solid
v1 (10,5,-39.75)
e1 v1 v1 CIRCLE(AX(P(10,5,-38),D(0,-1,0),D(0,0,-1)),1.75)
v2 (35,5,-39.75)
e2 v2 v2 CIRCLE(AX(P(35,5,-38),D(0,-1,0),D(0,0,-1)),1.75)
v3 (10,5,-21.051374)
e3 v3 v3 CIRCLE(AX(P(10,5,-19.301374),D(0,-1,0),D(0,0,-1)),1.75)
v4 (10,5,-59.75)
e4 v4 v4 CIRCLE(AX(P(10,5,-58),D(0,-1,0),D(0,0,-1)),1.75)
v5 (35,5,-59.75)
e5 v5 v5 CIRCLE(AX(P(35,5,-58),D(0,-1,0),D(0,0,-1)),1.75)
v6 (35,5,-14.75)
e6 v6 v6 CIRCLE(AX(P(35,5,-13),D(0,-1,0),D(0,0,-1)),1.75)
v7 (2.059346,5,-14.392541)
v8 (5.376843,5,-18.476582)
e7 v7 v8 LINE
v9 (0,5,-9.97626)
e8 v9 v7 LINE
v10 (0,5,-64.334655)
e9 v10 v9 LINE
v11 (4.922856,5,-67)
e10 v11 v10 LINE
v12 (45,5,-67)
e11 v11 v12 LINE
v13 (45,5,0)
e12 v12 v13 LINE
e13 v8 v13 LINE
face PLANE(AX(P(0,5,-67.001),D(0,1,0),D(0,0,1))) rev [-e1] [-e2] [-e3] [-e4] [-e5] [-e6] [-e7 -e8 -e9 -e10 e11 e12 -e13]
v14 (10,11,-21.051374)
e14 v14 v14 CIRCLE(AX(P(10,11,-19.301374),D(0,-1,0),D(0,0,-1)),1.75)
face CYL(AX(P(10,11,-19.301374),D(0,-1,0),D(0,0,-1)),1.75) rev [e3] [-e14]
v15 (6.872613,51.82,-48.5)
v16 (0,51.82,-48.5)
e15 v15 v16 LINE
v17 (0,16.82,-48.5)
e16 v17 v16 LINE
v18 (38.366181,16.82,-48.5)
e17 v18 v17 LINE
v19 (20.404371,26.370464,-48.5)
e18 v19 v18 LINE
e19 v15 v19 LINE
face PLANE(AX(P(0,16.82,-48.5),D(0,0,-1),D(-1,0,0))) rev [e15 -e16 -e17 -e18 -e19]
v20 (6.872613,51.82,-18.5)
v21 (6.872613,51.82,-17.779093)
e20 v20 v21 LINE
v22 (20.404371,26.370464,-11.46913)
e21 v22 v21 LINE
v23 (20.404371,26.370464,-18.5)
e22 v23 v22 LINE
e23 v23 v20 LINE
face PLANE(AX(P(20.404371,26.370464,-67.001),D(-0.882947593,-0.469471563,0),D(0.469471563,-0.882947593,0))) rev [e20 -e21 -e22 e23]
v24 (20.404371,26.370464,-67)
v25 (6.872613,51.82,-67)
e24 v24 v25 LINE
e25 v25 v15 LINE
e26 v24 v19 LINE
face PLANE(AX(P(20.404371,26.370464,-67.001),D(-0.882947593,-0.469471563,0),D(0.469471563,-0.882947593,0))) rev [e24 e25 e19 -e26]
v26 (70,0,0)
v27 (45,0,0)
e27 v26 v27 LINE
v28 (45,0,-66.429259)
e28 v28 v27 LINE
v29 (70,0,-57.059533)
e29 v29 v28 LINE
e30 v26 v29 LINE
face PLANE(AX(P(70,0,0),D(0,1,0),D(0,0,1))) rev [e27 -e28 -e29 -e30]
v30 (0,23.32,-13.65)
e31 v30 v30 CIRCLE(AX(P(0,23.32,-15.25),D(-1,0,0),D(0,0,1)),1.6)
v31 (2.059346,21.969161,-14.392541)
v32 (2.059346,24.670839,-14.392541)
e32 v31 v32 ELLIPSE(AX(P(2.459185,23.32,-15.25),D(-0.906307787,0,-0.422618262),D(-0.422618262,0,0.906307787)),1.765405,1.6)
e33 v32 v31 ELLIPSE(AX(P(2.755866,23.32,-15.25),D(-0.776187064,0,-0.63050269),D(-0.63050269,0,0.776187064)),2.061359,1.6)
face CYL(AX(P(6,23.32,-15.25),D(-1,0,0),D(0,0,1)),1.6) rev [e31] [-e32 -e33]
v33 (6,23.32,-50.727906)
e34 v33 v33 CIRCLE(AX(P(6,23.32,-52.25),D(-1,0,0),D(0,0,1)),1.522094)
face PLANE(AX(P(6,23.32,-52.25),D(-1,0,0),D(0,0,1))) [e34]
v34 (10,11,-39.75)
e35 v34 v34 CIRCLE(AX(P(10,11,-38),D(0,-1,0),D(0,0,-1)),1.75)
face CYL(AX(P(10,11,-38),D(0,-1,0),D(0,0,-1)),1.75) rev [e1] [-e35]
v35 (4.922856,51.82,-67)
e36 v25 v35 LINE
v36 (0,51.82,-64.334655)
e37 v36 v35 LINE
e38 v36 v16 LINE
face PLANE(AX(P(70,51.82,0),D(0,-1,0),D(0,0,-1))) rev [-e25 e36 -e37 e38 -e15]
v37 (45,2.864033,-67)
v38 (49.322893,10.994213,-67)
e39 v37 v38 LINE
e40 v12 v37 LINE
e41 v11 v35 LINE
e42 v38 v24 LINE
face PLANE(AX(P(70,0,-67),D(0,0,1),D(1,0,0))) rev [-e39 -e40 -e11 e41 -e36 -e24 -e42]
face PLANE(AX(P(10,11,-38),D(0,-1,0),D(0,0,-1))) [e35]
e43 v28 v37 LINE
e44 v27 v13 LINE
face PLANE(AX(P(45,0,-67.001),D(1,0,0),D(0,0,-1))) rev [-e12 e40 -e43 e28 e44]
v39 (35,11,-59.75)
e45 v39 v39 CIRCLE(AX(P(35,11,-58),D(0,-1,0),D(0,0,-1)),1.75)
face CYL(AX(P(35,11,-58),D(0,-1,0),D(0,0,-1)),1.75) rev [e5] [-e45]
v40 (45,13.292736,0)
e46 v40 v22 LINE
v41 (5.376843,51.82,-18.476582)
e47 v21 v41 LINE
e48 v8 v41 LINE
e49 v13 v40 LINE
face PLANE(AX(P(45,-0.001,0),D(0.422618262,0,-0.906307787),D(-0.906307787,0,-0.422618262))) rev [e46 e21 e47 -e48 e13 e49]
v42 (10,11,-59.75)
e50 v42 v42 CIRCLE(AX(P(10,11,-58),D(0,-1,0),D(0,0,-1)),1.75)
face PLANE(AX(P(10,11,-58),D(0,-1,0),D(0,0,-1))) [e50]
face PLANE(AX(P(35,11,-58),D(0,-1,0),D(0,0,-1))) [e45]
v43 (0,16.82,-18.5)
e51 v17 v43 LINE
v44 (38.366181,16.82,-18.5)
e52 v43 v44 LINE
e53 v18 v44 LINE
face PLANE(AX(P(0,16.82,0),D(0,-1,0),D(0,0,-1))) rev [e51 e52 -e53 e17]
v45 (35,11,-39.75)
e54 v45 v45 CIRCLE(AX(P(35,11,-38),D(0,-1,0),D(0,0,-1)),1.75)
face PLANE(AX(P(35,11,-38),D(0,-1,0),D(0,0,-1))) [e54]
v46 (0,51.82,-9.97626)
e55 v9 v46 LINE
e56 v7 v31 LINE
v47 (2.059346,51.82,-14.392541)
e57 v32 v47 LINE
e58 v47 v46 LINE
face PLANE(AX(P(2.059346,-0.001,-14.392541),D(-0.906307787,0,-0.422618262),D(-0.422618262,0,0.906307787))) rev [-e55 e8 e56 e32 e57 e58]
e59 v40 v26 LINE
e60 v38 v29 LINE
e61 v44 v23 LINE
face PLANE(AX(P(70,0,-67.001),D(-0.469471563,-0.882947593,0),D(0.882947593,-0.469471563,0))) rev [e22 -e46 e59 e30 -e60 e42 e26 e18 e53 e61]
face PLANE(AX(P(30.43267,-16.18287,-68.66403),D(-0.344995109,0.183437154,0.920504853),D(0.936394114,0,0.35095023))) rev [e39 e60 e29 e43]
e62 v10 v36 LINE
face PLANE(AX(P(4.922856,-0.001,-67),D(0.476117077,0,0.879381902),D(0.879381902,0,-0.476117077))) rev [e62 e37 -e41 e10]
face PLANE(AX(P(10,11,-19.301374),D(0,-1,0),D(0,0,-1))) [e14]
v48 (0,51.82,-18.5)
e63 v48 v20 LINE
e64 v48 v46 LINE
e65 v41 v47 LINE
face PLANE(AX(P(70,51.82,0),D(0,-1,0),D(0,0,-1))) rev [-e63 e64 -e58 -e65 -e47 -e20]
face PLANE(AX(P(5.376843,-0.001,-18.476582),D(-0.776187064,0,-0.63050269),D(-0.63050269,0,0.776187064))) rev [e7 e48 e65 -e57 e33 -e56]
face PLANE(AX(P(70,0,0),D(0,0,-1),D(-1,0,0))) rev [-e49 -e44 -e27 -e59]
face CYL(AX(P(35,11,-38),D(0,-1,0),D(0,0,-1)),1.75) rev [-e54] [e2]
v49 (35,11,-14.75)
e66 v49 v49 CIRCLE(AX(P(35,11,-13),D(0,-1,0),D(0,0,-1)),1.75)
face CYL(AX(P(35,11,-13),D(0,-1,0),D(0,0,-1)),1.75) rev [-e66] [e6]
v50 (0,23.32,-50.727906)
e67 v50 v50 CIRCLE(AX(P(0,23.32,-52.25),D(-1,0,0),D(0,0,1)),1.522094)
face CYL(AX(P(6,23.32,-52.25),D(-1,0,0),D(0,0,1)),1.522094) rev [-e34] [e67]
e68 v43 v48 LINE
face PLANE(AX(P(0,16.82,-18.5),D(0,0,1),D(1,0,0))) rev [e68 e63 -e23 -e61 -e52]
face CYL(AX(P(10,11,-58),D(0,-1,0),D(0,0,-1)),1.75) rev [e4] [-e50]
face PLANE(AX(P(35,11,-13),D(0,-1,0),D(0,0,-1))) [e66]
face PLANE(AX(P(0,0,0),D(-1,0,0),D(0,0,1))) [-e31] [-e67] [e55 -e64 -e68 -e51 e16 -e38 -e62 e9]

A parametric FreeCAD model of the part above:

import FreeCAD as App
import Part
import Sketcher

V = App.Vector
Q = App.Units.Quantity


def add_polygon(sketch, points):
    """Adds a closed chain of lines whose ends are joined by coincident constraints."""
    first, n = sketch.GeometryCount, len(points)
    for a, b in zip(points, points[1:] + points[:1]):
        sketch.addGeometry(Part.LineSegment(App.Vector(*a, 0), App.Vector(*b, 0)), False)
    for i in range(n):
        sketch.addConstraint(Sketcher.Constraint("Coincident", first + i, 2, first + (i + 1) % n, 1))

doc = App.newDocument("Part")
body = doc.addObject("PartDesign::Body", "Body")

sketch1 = doc.addObject("Sketcher::SketchObject", "Sketch")
body.addObject(sketch1)
sketch1.AttachmentSupport = (doc.YZ_Plane, [""])
sketch1.MapMode = "FlatFace"
add_polygon(sketch1, [(52, 0), (0, 0), (0, -67), (52, -67)])
sketch1.addConstraint([
    Sketcher.Constraint("Horizontal", 0),
    Sketcher.Constraint("Vertical", 1),
    Sketcher.Constraint("Horizontal", 2),
    Sketcher.Constraint("Vertical", 3),
    Sketcher.Constraint("Coincident", 0, 2, -1, 1),
    Sketcher.Constraint("DistanceY", 1, 2, 1, 1, Q("67 mm")),
    Sketcher.Constraint("DistanceX", 0, 2, 0, 1, Q("51.82 mm")),
])
pad1 = doc.addObject("PartDesign::Pad", "Pad")
body.addObject(pad1)
pad1.Profile = sketch1
pad1.Length = 70

sketch2 = doc.addObject("Sketcher::SketchObject", "Sketch001")
body.addObject(sketch2)
sketch2.AttachmentSupport = (doc.XY_Plane, [""])
sketch2.MapMode = "FlatFace"
add_polygon(sketch2, [(20, 26), (70, 0), (70, 52), (7, 52)])
sketch2.addConstraint([
    Sketcher.Constraint("Vertical", 1),
    Sketcher.Constraint("Horizontal", 2),
    Sketcher.Constraint("PointOnObject", 0, 2, -1),
    Sketcher.Constraint("Angle", 0, Q("-28 deg")),
    Sketcher.Constraint("Angle", 3, Q("-62 deg")),
    Sketcher.Constraint("DistanceX", -1, 1, 0, 2, Q("70 mm")),
    Sketcher.Constraint("DistanceY", 1, 1, 1, 2, Q("51.82 mm")),
    Sketcher.Constraint("DistanceX", 2, 2, 2, 1, Q("63.127387 mm")),
])
pocket1 = doc.addObject("PartDesign::Pocket", "Pocket")
body.addObject(pocket1)
pocket1.Profile = sketch2
pocket1.Type = "UpToFirst"

sketch3 = doc.addObject("Sketcher::SketchObject", "Sketch002")
body.addObject(sketch3)
sketch3.AttachmentSupport = (doc.XZ_Plane, [""])
sketch3.MapMode = "FlatFace"
sketch3.AttachmentOffset = App.Placement(V(0, 0, -51.82), App.Rotation())
add_polygon(sketch3, [(0, -48), (0, -18), (60, -18), (60, -48)])
sketch3.addConstraint([
    Sketcher.Constraint("Vertical", 0),
    Sketcher.Constraint("Horizontal", 1),
    Sketcher.Constraint("Vertical", 2),
    Sketcher.Constraint("Horizontal", 3),
    Sketcher.Constraint("PointOnObject", 0, 2, -2),
    Sketcher.Constraint("DistanceX", 1, 1, 1, 2, Q("60 mm")),
    Sketcher.Constraint("DistanceY", 0, 1, 0, 2, Q("30 mm")),
    Sketcher.Constraint("DistanceY", 0, 2, -1, 1, Q("18.5 mm")),
])
pocket2 = doc.addObject("PartDesign::Pocket", "Pocket001")
body.addObject(pocket2)
pocket2.Profile = sketch3
pocket2.Length = 35
pocket2.Reversed = True

sketch4 = doc.addObject("Sketcher::SketchObject", "Sketch003")
body.addObject(sketch4)
sketch4.AttachmentSupport = (doc.XY_Plane, [""])
sketch4.MapMode = "FlatFace"
add_polygon(sketch4, [(0, 5), (0, 0), (45, 0), (45, 5)])
sketch4.addConstraint([
    Sketcher.Constraint("Vertical", 0),
    Sketcher.Constraint("Horizontal", 1),
    Sketcher.Constraint("Vertical", 2),
    Sketcher.Constraint("Horizontal", 3),
    Sketcher.Constraint("Coincident", 0, 2, -1, 1),
    Sketcher.Constraint("DistanceX", 1, 1, 1, 2, Q("45 mm")),
    Sketcher.Constraint("DistanceY", 0, 2, 0, 1, Q("5 mm")),
])
pocket3 = doc.addObject("PartDesign::Pocket", "Pocket002")
body.addObject(pocket3)
pocket3.Profile = sketch4
pocket3.Type = "UpToFirst"

sketch5 = doc.addObject("Sketcher::SketchObject", "Sketch004")
body.addObject(sketch5)
sketch5.AttachmentSupport = (doc.XZ_Plane, [""])
sketch5.MapMode = "FlatFace"
sketch5.AttachmentOffset = App.Placement(V(0, 0, -51.82), App.Rotation())
add_polygon(sketch5, [(0, -64.3), (4.9, -67), (0, -67)])
sketch5.addConstraint([
    Sketcher.Constraint("Horizontal", 1),
    Sketcher.Constraint("Vertical", 2),
    Sketcher.Constraint("PointOnObject", 1, 2, -2),
    Sketcher.Constraint("DistanceY", 0, 2, -1, 1, Q("67 mm")),
    Sketcher.Constraint("DistanceX", 1, 2, 1, 1, Q("4.922856 mm")),
    Sketcher.Constraint("DistanceY", 2, 1, 2, 2, Q("2.665345 mm")),
])
pocket4 = doc.addObject("PartDesign::Pocket", "Pocket003")
body.addObject(pocket4)
pocket4.Profile = sketch5
pocket4.Type = "UpToFirst"
pocket4.Reversed = True

sketch6 = doc.addObject("Sketcher::SketchObject", "Sketch005")
body.addObject(sketch6)
sketch6.AttachmentSupport = (doc.XZ_Plane, [""])
sketch6.MapMode = "FlatFace"
sketch6.AttachmentOffset = App.Placement(V(0, 0, -51.82), App.Rotation())
add_polygon(sketch6, [(45, 0), (5.4, -18.5), (2.1, -14.4), (0, -10), (0, 0.1), (6.9, 0)])
sketch6.addConstraint([
    Sketcher.Constraint("Vertical", 3),
    Sketcher.Constraint("Horizontal", 5),
    Sketcher.Constraint("PointOnObject", 2, 2, -2),
    Sketcher.Constraint("PointOnObject", 4, 2, -1),
    Sketcher.Constraint("Perpendicular", 0, 2),
    Sketcher.Constraint("Angle", 0, Q("-155 deg")),
    Sketcher.Constraint("DistanceX", -1, 1, 5, 2, Q("45 mm")),
    Sketcher.Constraint("Distance", 1, Q("5.26167 mm")),
    Sketcher.Constraint("DistanceX", 5, 1, 5, 2, Q("38.127387 mm")),
    Sketcher.Constraint("DistanceY", 3, 1, 3, 2, Q("10.038463 mm")),
    Sketcher.Constraint("DistanceY", 0, 2, -1, 1, Q("18.476582 mm")),
    Sketcher.Constraint("DistanceY", 1, 2, -1, 1, Q("14.392541 mm")),
])
pocket5 = doc.addObject("PartDesign::Pocket", "Pocket004")
body.addObject(pocket5)
pocket5.Profile = sketch6
pocket5.Length = 46.82
pocket5.Reversed = True

sketch7 = doc.addObject("Sketcher::SketchObject", "Sketch006")
body.addObject(sketch7)
sketch7.AttachmentSupport = (doc.YZ_Plane, [""])
sketch7.MapMode = "FlatFace"
sketch7.addGeometry([
    Part.Circle(V(23.3, -15.2, 0), V(0, 0, 1), 1.6),
    Part.Circle(V(23.3, -52.2, 0), V(0, 0, 1), 1.5),
], False)
sketch7.addConstraint([
    Sketcher.Constraint("Vertical", 0, 3, 1, 3),
    Sketcher.Constraint("Diameter", 0, Q("3.2 mm")),
    Sketcher.Constraint("DistanceY", 1, 3, 0, 3, Q("37 mm")),
    Sketcher.Constraint("Diameter", 1, Q("3.044188 mm")),
    Sketcher.Constraint("DistanceX", -1, 1, 0, 3, Q("23.32 mm")),
    Sketcher.Constraint("DistanceY", 0, 3, -1, 1, Q("15.25 mm")),
])
pocket6 = doc.addObject("PartDesign::Pocket", "Pocket005")
body.addObject(pocket6)
pocket6.Profile = sketch7
pocket6.Length = 6
pocket6.Reversed = True

sketch8 = doc.addObject("Sketcher::SketchObject", "Sketch007")
body.addObject(sketch8)
sketch8.AttachmentSupport = (doc.XZ_Plane, [""])
sketch8.MapMode = "FlatFace"
sketch8.AttachmentOffset = App.Placement(V(0, 0, -5), App.Rotation())
sketch8.addGeometry([
    Part.Circle(V(35, -58, 0), V(0, 0, 1), 1.8),
    Part.Circle(V(10, -58, 0), V(0, 0, 1), 1.8),
    Part.Circle(V(10, -38, 0), V(0, 0, 1), 1.8),
    Part.Circle(V(35, -38, 0), V(0, 0, 1), 1.8),
    Part.Circle(V(10, -19.3, 0), V(0, 0, 1), 1.8),
    Part.Circle(V(35, -13, 0), V(0, 0, 1), 1.8),
], False)
sketch8.addConstraint([
    Sketcher.Constraint("Equal", 0, 1),
    Sketcher.Constraint("Equal", 1, 2),
    Sketcher.Constraint("Equal", 2, 3),
    Sketcher.Constraint("Equal", 3, 4),
    Sketcher.Constraint("Equal", 4, 5),
    Sketcher.Constraint("Horizontal", 0, 3, 1, 3),
    Sketcher.Constraint("Horizontal", 2, 3, 3, 3),
    Sketcher.Constraint("Vertical", 1, 3, 2, 3),
    Sketcher.Constraint("Vertical", 0, 3, 3, 3),
    Sketcher.Constraint("Vertical", 2, 3, 4, 3),
    Sketcher.Constraint("Vertical", 3, 3, 5, 3),
    Sketcher.Constraint("Diameter", 0, Q("3.5 mm")),
    Sketcher.Constraint("DistanceX", -1, 1, 0, 3, Q("35 mm")),
    Sketcher.Constraint("DistanceY", 0, 3, -1, 1, Q("58 mm")),
    Sketcher.Constraint("DistanceX", -1, 1, 1, 3, Q("10 mm")),
    Sketcher.Constraint("DistanceY", 2, 3, -1, 1, Q("38 mm")),
    Sketcher.Constraint("DistanceY", 5, 3, -1, 1, Q("13 mm")),
    Sketcher.Constraint("DistanceY", 4, 3, -1, 1, Q("19.301374 mm")),
])
pocket7 = doc.addObject("PartDesign::Pocket", "Pocket006")
body.addObject(pocket7)
pocket7.Profile = sketch8
pocket7.Length = 6

sketch9 = doc.addObject("Sketcher::SketchObject", "Sketch008")
body.addObject(sketch9)
sketch9.Placement = App.Placement(V(15.428248, 29.016315, 0), App.Rotation(V(0.882947593, -0.469471563, 0), V(0, 0, -1), V(0.469471563, 0.882947593, 0), "ZXY"))
add_polygon(sketch9, [(34, 69), (75, 51), (75, 69)])
sketch9.addConstraint([
    Sketcher.Constraint("Vertical", 1),
    Sketcher.Constraint("Horizontal", 2),
    Sketcher.Constraint("Angle", 0, Q("-23 deg")),
    Sketcher.Constraint("DistanceX", 2, 2, 2, 1, Q("40.715282 mm")),
    Sketcher.Constraint("DistanceY", -1, 1, 0, 2, Q("51.381418 mm")),
    Sketcher.Constraint("DistanceX", -1, 1, 2, 2, Q("34.46785 mm")),
])
pocket8 = doc.addObject("PartDesign::Pocket", "Pocket007")
body.addObject(pocket8)
pocket8.Profile = sketch9
pocket8.Length = 11.736789

doc.recompute()
